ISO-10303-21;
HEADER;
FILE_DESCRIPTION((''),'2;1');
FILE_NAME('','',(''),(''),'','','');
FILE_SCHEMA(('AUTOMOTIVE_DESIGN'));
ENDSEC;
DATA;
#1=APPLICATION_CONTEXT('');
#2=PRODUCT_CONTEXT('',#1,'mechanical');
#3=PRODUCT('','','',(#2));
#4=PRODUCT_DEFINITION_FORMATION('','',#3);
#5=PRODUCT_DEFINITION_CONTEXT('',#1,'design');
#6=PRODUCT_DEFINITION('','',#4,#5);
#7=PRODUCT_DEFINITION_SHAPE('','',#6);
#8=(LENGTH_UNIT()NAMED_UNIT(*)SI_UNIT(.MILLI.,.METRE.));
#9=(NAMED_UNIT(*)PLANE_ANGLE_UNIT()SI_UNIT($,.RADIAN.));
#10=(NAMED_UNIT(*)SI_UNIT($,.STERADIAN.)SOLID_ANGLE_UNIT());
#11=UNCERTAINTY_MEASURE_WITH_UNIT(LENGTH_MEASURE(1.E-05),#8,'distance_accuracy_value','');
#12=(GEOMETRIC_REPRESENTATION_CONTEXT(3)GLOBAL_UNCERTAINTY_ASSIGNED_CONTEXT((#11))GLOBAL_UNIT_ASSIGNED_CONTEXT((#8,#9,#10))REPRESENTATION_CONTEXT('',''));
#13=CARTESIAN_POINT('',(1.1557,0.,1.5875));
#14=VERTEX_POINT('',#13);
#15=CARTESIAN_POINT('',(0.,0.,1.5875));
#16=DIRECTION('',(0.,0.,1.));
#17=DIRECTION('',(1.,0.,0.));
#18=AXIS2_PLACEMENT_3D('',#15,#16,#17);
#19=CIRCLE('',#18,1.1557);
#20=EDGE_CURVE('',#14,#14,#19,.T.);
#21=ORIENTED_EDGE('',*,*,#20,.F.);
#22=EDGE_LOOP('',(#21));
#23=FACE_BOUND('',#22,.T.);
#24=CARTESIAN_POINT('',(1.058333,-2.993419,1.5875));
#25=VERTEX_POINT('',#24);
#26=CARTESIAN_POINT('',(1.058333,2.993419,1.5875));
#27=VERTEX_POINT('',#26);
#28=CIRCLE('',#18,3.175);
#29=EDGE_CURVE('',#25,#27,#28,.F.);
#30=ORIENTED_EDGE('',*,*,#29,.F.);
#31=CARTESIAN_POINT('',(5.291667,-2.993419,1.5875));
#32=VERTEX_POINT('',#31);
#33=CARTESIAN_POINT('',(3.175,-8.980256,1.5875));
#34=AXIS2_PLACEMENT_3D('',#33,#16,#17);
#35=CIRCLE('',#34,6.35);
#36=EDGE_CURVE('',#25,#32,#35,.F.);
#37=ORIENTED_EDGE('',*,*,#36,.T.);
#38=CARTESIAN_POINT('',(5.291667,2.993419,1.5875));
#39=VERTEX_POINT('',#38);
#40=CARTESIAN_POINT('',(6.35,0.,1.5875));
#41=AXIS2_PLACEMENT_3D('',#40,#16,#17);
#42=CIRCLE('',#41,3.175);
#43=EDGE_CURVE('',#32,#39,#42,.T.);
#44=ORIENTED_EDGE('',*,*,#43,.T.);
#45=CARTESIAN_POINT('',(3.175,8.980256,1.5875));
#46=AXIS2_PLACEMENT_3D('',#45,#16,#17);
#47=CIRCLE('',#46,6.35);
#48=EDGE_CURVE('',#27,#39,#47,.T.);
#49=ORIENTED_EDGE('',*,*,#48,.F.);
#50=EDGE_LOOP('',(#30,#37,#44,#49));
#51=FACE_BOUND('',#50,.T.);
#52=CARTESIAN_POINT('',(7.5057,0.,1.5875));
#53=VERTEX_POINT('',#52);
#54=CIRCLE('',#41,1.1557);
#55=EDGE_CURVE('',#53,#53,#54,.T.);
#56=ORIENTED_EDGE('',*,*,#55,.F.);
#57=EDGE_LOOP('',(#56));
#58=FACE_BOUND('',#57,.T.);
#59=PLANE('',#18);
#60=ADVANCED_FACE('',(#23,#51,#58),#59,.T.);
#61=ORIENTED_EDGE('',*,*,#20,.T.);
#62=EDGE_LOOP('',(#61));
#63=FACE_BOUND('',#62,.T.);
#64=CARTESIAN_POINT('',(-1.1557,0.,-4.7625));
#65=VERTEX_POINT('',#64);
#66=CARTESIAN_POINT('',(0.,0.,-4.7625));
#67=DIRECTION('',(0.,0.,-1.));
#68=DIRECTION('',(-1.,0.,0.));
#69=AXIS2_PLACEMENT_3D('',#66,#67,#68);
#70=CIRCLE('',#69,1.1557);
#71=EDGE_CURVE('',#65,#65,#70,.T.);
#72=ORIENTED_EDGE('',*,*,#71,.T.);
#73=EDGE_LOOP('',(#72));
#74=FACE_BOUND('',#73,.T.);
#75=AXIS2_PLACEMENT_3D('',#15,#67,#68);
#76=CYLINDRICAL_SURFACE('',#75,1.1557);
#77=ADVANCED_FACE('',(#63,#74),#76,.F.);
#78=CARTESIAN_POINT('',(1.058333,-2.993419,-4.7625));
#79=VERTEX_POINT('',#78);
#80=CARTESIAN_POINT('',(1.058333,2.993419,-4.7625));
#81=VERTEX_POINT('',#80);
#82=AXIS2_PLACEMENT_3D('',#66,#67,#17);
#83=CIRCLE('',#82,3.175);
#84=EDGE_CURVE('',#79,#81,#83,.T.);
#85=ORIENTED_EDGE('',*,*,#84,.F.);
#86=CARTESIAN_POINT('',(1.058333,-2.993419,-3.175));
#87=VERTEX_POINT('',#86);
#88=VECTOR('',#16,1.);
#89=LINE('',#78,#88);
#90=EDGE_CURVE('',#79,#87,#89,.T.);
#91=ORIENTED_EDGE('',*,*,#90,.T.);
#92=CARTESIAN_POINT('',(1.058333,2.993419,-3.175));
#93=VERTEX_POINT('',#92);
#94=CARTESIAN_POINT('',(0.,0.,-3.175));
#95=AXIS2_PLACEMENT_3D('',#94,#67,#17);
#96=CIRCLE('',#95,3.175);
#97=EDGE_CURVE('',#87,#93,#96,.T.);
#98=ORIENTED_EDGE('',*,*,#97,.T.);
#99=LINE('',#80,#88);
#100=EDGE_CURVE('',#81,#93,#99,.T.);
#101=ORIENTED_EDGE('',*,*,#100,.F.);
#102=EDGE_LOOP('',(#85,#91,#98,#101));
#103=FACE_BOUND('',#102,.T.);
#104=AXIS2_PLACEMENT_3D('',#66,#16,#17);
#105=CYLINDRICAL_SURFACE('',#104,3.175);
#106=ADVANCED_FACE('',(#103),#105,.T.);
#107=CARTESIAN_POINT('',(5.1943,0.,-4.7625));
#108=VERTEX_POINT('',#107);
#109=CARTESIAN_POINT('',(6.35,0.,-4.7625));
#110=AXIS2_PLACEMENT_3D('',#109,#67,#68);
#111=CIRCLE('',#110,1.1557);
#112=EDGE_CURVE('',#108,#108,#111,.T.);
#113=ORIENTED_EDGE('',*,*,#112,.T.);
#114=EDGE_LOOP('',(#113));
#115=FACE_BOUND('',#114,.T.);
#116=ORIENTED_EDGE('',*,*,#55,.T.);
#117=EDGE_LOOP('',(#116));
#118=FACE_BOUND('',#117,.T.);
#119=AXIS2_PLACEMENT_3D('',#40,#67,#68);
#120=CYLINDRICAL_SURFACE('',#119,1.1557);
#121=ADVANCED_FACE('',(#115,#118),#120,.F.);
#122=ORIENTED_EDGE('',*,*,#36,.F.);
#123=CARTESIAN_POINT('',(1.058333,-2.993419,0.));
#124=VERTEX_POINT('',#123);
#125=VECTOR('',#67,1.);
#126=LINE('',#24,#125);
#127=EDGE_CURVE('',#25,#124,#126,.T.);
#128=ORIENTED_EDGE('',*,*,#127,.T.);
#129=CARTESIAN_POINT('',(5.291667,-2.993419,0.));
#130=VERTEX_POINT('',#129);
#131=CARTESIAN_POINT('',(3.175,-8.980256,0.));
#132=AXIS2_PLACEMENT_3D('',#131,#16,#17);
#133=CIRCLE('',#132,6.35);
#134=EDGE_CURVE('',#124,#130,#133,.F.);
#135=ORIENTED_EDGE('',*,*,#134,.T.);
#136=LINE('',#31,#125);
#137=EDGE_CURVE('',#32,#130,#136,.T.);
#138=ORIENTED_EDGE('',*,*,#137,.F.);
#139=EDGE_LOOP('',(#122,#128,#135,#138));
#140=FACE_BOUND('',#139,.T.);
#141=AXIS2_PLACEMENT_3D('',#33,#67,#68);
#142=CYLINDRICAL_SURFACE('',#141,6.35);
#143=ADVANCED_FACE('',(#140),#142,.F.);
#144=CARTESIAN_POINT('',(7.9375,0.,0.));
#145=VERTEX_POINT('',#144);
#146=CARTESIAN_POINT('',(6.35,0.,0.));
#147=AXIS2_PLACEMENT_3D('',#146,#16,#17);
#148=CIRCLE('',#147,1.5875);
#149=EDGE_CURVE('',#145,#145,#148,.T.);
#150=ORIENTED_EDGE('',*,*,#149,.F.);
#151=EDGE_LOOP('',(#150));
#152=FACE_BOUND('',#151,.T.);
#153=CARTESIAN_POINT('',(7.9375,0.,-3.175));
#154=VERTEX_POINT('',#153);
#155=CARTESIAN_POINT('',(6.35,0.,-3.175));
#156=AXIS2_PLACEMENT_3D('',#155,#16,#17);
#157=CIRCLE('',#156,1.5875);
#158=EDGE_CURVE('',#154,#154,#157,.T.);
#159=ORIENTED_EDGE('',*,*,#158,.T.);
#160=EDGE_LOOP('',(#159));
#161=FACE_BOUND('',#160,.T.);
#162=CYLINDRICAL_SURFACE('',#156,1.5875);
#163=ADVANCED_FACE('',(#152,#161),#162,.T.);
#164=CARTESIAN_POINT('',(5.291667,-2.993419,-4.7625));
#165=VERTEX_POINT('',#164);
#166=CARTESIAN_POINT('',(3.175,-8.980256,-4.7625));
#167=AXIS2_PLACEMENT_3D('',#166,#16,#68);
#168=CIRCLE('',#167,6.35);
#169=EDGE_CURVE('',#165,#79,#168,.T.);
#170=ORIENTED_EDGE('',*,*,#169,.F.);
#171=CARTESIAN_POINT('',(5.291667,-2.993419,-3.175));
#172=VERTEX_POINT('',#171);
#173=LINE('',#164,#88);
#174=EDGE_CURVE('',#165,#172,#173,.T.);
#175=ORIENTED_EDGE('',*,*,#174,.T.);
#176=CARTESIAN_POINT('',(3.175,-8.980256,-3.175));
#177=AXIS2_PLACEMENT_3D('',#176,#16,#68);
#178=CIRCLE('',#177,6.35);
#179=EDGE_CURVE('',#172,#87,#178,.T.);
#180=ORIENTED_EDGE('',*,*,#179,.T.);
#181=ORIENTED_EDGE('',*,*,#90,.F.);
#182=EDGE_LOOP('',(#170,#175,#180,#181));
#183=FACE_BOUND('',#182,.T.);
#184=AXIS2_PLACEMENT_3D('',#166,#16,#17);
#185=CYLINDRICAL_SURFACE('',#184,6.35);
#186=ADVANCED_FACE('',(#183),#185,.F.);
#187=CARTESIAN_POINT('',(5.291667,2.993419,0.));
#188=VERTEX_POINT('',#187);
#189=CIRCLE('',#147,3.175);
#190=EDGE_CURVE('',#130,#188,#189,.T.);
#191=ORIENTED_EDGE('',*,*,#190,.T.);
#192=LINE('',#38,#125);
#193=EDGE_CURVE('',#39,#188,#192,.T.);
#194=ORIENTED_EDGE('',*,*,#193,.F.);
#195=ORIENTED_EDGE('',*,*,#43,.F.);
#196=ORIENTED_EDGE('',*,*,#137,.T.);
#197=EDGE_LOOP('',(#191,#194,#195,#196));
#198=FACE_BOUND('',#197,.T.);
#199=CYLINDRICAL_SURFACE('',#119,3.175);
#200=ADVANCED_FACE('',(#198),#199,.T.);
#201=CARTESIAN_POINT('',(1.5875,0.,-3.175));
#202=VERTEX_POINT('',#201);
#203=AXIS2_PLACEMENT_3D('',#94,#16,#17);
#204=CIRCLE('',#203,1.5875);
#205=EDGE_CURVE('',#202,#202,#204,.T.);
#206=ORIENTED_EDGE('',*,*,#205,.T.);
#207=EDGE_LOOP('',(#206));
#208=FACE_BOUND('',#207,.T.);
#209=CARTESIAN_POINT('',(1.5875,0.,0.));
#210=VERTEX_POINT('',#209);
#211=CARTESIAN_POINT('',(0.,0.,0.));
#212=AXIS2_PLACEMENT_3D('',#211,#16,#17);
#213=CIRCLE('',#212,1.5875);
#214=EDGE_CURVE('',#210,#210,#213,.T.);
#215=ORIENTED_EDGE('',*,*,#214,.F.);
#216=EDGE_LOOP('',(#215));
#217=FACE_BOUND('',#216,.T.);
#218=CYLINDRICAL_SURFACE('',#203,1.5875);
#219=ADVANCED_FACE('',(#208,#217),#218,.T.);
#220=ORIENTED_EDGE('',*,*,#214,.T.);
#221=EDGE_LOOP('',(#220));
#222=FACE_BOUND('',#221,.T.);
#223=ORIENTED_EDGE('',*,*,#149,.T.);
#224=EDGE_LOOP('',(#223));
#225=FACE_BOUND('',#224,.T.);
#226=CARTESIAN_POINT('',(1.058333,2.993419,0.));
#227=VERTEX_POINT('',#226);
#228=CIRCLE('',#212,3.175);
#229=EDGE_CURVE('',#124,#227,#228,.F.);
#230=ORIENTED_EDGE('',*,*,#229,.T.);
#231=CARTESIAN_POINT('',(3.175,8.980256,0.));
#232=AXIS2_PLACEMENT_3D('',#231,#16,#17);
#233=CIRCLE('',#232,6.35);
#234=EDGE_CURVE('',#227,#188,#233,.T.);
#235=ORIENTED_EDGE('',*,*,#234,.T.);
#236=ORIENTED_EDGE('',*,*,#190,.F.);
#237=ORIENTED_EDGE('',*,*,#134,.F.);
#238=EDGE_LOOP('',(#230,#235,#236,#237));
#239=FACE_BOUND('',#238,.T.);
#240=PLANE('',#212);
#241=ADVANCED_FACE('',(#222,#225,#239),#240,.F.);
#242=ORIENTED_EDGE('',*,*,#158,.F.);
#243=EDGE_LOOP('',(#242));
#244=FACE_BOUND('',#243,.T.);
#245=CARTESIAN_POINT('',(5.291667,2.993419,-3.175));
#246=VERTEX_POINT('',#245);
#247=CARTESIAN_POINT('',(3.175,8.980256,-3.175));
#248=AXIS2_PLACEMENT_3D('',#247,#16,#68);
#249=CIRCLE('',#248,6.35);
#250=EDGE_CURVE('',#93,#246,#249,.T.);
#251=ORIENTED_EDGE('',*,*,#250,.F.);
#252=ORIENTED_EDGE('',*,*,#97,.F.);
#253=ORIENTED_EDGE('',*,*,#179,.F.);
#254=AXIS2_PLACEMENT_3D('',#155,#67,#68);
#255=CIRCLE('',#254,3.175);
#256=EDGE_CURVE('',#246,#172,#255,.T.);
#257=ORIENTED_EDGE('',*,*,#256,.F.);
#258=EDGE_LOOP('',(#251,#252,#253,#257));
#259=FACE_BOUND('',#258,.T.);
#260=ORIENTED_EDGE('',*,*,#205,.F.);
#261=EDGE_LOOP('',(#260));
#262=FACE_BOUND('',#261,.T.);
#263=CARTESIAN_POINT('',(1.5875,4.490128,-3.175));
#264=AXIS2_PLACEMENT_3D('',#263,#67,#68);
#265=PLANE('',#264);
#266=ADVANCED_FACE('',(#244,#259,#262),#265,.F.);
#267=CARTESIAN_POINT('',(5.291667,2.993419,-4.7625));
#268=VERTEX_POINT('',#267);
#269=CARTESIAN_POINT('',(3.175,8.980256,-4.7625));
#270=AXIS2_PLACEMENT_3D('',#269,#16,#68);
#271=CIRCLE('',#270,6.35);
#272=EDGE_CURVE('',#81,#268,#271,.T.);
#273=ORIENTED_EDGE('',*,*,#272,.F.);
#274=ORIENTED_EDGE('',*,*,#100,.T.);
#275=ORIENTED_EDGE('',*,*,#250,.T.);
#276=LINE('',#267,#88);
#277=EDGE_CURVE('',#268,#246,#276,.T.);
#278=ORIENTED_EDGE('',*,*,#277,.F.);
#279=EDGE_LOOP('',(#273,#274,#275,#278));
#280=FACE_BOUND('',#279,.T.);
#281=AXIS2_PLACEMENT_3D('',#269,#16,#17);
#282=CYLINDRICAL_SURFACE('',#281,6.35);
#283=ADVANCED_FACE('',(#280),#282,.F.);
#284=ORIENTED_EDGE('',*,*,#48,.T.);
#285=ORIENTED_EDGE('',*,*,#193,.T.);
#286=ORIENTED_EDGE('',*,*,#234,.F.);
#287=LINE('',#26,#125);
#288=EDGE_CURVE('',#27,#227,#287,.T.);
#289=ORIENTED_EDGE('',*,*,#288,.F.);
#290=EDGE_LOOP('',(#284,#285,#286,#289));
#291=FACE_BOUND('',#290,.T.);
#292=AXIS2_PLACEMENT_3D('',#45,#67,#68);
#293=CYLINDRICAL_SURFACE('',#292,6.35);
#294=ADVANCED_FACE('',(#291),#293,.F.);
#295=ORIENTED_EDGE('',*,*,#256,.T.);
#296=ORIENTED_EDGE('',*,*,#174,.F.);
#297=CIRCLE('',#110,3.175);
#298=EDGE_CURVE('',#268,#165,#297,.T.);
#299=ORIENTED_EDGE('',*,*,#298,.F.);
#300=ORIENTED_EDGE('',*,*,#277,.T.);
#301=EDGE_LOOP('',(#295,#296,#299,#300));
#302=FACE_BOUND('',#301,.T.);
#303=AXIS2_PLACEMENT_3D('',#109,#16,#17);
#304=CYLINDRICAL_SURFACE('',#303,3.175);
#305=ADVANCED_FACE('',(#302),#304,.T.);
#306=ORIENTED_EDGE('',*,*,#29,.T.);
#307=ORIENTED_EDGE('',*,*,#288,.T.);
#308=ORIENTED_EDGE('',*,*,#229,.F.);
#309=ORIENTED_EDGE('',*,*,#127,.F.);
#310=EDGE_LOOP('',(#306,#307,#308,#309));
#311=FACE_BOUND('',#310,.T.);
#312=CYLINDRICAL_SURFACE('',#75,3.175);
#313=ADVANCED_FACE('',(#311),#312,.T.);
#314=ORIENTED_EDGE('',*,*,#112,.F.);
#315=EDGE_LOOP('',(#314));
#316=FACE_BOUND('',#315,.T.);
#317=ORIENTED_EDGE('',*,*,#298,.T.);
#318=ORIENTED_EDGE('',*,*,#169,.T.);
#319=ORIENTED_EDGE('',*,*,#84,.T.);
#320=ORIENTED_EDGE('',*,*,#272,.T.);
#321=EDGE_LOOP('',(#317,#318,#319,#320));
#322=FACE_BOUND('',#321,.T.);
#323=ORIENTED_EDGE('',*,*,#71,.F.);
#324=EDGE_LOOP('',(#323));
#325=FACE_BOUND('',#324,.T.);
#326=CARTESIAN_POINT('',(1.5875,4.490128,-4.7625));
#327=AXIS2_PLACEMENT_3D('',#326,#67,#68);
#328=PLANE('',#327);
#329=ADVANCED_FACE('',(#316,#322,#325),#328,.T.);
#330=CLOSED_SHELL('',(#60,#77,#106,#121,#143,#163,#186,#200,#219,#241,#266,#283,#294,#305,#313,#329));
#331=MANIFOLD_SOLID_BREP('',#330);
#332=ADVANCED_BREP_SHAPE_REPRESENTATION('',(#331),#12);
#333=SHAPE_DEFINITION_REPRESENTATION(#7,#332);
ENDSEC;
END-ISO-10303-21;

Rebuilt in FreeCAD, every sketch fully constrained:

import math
import FreeCAD as App
import Part
import Sketcher
from FreeCAD import Vector
Q = App.Units.Quantity

doc = App.newDocument("Part")
body = doc.addObject("PartDesign::Body", "Body")

# Sketch on XY plane
sketch1 = body.newObject("Sketcher::SketchObject", "Sketch")
sketch1.AttachmentSupport = (doc.getObject("XY_Plane"), [""])
sketch1.MapMode = "FlatFace"
sketch1.addGeometry(Part.ArcOfCircle(Part.Circle(Vector(0, 0, 0), Vector(0, 0, 1), 3.175), math.radians(70.528779), math.radians(289.471221)), False)
sketch1.addGeometry(Part.ArcOfCircle(Part.Circle(Vector(3.175, -8.980256, 0), Vector(0, 0, 1), 6.35), math.radians(70.528779), math.radians(109.471221)), False)
sketch1.addGeometry(Part.ArcOfCircle(Part.Circle(Vector(6.35, 0, 0), Vector(0, 0, 1), 3.175), math.radians(-109.471221), math.radians(109.471221)), False)
sketch1.addGeometry(Part.ArcOfCircle(Part.Circle(Vector(3.175, 8.980256, 0), Vector(0, 0, 1), 6.35), math.radians(-109.471221), math.radians(-70.528779)), False)
sketch1.addGeometry(Part.Circle(Vector(6.35, 0, 0), Vector(0, 0, 1), 1.1557), False)
sketch1.addGeometry(Part.Circle(Vector(0, 0, 0), Vector(0, 0, 1), 1.1557), False)
sketch1.addConstraint(Sketcher.Constraint("Tangent", 0, 2, 1, 2))
sketch1.addConstraint(Sketcher.Constraint("Tangent", 1, 1, 2, 1))
sketch1.addConstraint(Sketcher.Constraint("Tangent", 2, 2, 3, 2))
sketch1.addConstraint(Sketcher.Constraint("Tangent", 3, 1, 0, 1))
sketch1.addConstraint(Sketcher.Constraint("Coincident", 0, 3, -1, 1))
sketch1.addConstraint(Sketcher.Constraint("Coincident", 5, 3, -1, 1))
sketch1.addConstraint(Sketcher.Constraint("Coincident", 4, 3, 2, 3))
sketch1.addConstraint(Sketcher.Constraint("Equal", 0, 2))
sketch1.addConstraint(Sketcher.Constraint("Equal", 1, 3))
sketch1.addConstraint(Sketcher.Constraint("Equal", 4, 5))
sketch1.addConstraint(Sketcher.Constraint("PointOnObject", 2, 3, -1))
sketch1.addConstraint(Sketcher.Constraint("Radius", 1, Q("0.25 in")))
sketch1.addConstraint(Sketcher.Constraint("Diameter", 4, Q("0.091 in")))
sketch1.addConstraint(Sketcher.Constraint("Radius", 0, Q("0.125 in")))
sketch1.addConstraint(Sketcher.Constraint("DistanceX", -1, 1, 2, 3, Q("0.25 in")))
pad1 = body.newObject("PartDesign::Pad", "Pad")
pad1.Profile = sketch1
pad1.Length = Q("0.0625 in")

# Sketch on XY plane
sketch2 = body.newObject("Sketcher::SketchObject", "Sketch001")
sketch2.AttachmentSupport = (doc.getObject("XY_Plane"), [""])
sketch2.MapMode = "FlatFace"
sketch2.AttachmentOffset = App.Placement(Vector(0, 0, -0.125 * 25.4), App.Rotation())
sketch2.addGeometry(Part.Circle(Vector(0, 0, 0), Vector(0, 0, 1), 1.5875), False)
sketch2.addGeometry(Part.Circle(Vector(0, 0, 0), Vector(0, 0, 1), 1.1557), False)
sketch2.addGeometry(Part.Circle(Vector(6.35, 0, 0), Vector(0, 0, 1), 1.5875), False)
sketch2.addGeometry(Part.Circle(Vector(6.35, 0, 0), Vector(0, 0, 1), 1.1557), False)
sketch2.addConstraint(Sketcher.Constraint("Coincident", 0, 3, -1, 1))
sketch2.addConstraint(Sketcher.Constraint("Coincident", 1, 3, -1, 1))
sketch2.addConstraint(Sketcher.Constraint("Coincident", 3, 3, 2, 3))
sketch2.addConstraint(Sketcher.Constraint("Equal", 0, 2))
sketch2.addConstraint(Sketcher.Constraint("Equal", 1, 3))
sketch2.addConstraint(Sketcher.Constraint("PointOnObject", 2, 3, -1))
sketch2.addConstraint(Sketcher.Constraint("Diameter", 0, Q("0.125 in")))
sketch2.addConstraint(Sketcher.Constraint("Diameter", 1, Q("0.091 in")))
sketch2.addConstraint(Sketcher.Constraint("DistanceX", -1, 1, 2, 3, Q("0.25 in")))
pad2 = body.newObject("PartDesign::Pad", "Pad001")
pad2.Profile = sketch2
pad2.Length = Q("0.125 in")

# Sketch on XY plane
sketch3 = body.newObject("Sketcher::SketchObject", "Sketch002")
sketch3.AttachmentSupport = (doc.getObject("XY_Plane"), [""])
sketch3.MapMode = "FlatFace"
sketch3.AttachmentOffset = App.Placement(Vector(0, 0, -0.1875 * 25.4), App.Rotation())
sketch3.addGeometry(Part.ArcOfCircle(Part.Circle(Vector(0, 0, 0), Vector(0, 0, 1), 3.175), math.radians(70.528779), math.radians(289.471221)), False)
sketch3.addGeometry(Part.ArcOfCircle(Part.Circle(Vector(3.175, 8.980256, 0), Vector(0, 0, 1), 6.35), math.radians(-109.471221), math.radians(-70.528779)), False)
sketch3.addGeometry(Part.ArcOfCircle(Part.Circle(Vector(6.35, 0, 0), Vector(0, 0, 1), 3.175), math.radians(-109.471221), math.radians(109.471221)), False)
sketch3.addGeometry(Part.ArcOfCircle(Part.Circle(Vector(3.175, -8.980256, 0), Vector(0, 0, 1), 6.35), math.radians(70.528779), math.radians(109.471221)), False)
sketch3.addGeometry(Part.Circle(Vector(0, 0, 0), Vector(0, 0, 1), 1.1557), False)
sketch3.addGeometry(Part.Circle(Vector(6.35, 0, 0), Vector(0, 0, 1), 1.1557), False)
sketch3.addConstraint(Sketcher.Constraint("Tangent", 0, 1, 1, 1))
sketch3.addConstraint(Sketcher.Constraint("Tangent", 1, 2, 2, 2))
sketch3.addConstraint(Sketcher.Constraint("Tangent", 2, 1, 3, 1))
sketch3.addConstraint(Sketcher.Constraint("Tangent", 3, 2, 0, 2))
sketch3.addConstraint(Sketcher.Constraint("Coincident", 0, 3, -1, 1))
sketch3.addConstraint(Sketcher.Constraint("Coincident", 4, 3, -1, 1))
sketch3.addConstraint(Sketcher.Constraint("Coincident", 5, 3, 2, 3))
sketch3.addConstraint(Sketcher.Constraint("Equal", 0, 2))
sketch3.addConstraint(Sketcher.Constraint("Equal", 1, 3))
sketch3.addConstraint(Sketcher.Constraint("Equal", 4, 5))
sketch3.addConstraint(Sketcher.Constraint("PointOnObject", 2, 3, -1))
sketch3.addConstraint(Sketcher.Constraint("Radius", 1, Q("0.25 in")))
sketch3.addConstraint(Sketcher.Constraint("Diameter", 4, Q("0.091 in")))
sketch3.addConstraint(Sketcher.Constraint("Radius", 0, Q("0.125 in")))
sketch3.addConstraint(Sketcher.Constraint("DistanceX", -1, 1, 2, 3, Q("0.25 in")))
pad3 = body.newObject("PartDesign::Pad", "Pad002")
pad3.Profile = sketch3
pad3.Length = Q("0.0625 in")

doc.recompute()
